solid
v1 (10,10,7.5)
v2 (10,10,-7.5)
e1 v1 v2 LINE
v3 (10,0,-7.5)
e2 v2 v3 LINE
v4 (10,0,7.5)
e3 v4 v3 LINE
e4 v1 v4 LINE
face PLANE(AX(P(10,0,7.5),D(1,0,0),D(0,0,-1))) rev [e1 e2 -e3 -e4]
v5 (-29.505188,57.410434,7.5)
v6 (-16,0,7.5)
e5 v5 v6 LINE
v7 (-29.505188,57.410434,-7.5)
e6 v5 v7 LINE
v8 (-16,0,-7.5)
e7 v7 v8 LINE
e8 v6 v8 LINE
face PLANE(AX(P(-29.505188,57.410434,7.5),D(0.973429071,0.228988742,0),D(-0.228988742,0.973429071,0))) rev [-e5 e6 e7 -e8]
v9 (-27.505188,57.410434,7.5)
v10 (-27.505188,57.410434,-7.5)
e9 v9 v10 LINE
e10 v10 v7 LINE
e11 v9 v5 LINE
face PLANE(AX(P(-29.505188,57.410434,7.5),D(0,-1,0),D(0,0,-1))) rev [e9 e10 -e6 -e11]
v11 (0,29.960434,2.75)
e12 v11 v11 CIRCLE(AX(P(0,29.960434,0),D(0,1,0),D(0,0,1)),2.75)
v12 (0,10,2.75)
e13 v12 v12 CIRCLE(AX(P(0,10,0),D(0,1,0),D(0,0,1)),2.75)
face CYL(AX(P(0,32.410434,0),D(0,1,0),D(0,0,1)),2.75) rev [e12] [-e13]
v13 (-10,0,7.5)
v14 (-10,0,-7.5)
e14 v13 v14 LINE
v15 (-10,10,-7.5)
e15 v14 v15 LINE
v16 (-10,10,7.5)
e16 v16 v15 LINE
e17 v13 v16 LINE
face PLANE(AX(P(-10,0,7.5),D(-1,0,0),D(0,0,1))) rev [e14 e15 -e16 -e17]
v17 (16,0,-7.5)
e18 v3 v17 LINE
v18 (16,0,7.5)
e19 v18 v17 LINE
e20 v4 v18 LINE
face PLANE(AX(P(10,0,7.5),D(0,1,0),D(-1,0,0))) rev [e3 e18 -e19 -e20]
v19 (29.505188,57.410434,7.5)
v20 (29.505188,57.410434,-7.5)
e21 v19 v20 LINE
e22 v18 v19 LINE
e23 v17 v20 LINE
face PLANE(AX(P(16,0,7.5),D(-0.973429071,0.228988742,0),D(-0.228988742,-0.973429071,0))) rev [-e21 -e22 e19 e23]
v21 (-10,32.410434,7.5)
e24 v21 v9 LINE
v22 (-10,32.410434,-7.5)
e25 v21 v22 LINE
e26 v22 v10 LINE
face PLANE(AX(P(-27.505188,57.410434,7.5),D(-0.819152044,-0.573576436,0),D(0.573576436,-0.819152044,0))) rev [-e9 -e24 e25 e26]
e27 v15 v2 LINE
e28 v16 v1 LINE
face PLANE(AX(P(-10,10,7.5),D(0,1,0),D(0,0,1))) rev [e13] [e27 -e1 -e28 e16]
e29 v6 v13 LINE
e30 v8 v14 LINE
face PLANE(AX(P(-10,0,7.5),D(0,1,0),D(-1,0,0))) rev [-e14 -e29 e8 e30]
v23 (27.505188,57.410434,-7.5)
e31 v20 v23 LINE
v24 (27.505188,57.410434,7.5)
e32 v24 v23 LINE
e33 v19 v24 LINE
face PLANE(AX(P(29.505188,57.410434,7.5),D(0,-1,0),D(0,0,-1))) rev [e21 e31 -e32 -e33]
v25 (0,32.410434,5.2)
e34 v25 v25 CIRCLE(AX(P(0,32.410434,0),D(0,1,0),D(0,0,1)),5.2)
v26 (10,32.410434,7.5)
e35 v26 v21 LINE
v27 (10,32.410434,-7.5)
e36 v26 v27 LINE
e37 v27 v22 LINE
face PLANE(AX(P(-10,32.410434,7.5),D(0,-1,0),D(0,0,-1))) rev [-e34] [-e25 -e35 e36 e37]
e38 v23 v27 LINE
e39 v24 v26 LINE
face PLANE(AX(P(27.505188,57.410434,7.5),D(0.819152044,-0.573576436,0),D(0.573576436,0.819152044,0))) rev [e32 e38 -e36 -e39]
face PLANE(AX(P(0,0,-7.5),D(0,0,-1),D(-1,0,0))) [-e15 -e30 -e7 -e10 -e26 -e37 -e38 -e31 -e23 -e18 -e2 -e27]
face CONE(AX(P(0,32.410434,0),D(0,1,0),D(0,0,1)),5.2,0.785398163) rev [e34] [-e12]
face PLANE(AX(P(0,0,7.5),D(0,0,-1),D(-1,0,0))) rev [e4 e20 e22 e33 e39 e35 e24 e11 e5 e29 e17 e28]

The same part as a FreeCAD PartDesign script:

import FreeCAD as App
import Part
import Sketcher
from FreeCAD import Vector
Q = App.Units.Quantity


def add_polygon(sketch, points):
    """Adds a closed chain of lines whose ends are joined by coincident constraints."""
    first, n = sketch.GeometryCount, len(points)
    for a, b in zip(points, points[1:] + points[:1]):
        sketch.addGeometry(Part.LineSegment(App.Vector(*a, 0), App.Vector(*b, 0)), False)
    for i in range(n):
        sketch.addConstraint(Sketcher.Constraint("Coincident", first + i, 2, first + (i + 1) % n, 1))

doc = App.newDocument("Part")
params = doc.addObject("Spreadsheet::Sheet", "Params")
for row, (alias, value) in enumerate([
    ("sketch1_width", "20 mm"),
    ("sketch1_width2", "6 mm"),
    ("sketch1_width3", "2 mm"),
    ("sketch1_height", "10 mm"),
    ("pad1_length", "15 mm"),
    ("sketch2_diameter", "5.5 mm"),
    ("hole_diameter", "5.5 mm"),
    ("hole_csink_diameter", "10.4 mm"),
], start=1):
    params.set(f"A{row}", alias)
    params.set(f"B{row}", "=" + value)
    params.setAlias(f"B{row}", alias)

body = doc.addObject("PartDesign::Body", "Body")

sketch1 = body.newObject("Sketcher::SketchObject", "Sketch")
sketch1.AttachmentSupport = (doc.getObject("XY_Plane"), [""])
sketch1.MapMode = "FlatFace"
add_polygon(sketch1, [(-10, 0), (-10, 10), (10, 10), (10, 0), (16, 0), (29.505188, 57.410434), (27.505188, 57.410434), (10, 32.410434), (-10, 32.410434), (-27.505188, 57.410434), (-29.505188, 57.410434), (-16, 0)])
sketch1.addConstraint(Sketcher.Constraint("Vertical", 0))
sketch1.addConstraint(Sketcher.Constraint("Horizontal", 1))
sketch1.addConstraint(Sketcher.Constraint("Vertical", 2))
sketch1.addConstraint(Sketcher.Constraint("Horizontal", 3))
sketch1.addConstraint(Sketcher.Constraint("Horizontal", 5))
sketch1.addConstraint(Sketcher.Constraint("Horizontal", 7))
sketch1.addConstraint(Sketcher.Constraint("Horizontal", 9))
sketch1.addConstraint(Sketcher.Constraint("Horizontal", 11))
sketch1.addConstraint(Sketcher.Constraint("Symmetric", 3, 2, 10, 2, -1, 1))
sketch1.addConstraint(Sketcher.Constraint("Symmetric", 5, 2, 8, 2, -2))
sketch1.addConstraint(Sketcher.Constraint("Symmetric", 2, 2, 11, 2, -2))
sketch1.addConstraint(Sketcher.Constraint("Vertical", 2, 2, 6, 2))
sketch1.addConstraint(Sketcher.Constraint("Vertical", 0, 2, 7, 2))
sketch1.addConstraint(Sketcher.Constraint("Equal", 5, 9))
sketch1.addConstraint(Sketcher.Constraint("DistanceX", 1, 1, 1, 2, 20.0))
sketch1.addConstraint(Sketcher.Constraint("DistanceX", 3, 1, 3, 2, 6.0))
sketch1.addConstraint(Sketcher.Constraint("DistanceX", 5, 2, 5, 1, 2.0))
sketch1.addConstraint(Sketcher.Constraint("DistanceY", 0, 1, 0, 2, 10.0))
sketch1.addConstraint(Sketcher.Constraint("Angle", 6, Q("-125 deg")))
sketch1.addConstraint(Sketcher.Constraint("DistanceY", 6, 2, 5, 2, 25.0))
sketch1.addConstraint(Sketcher.Constraint("Distance", 4, 58.977522))
sketch1.setExpression("Constraints[26]", "Params.sketch1_width")
sketch1.setExpression("Constraints[27]", "Params.sketch1_width2")
sketch1.setExpression("Constraints[28]", "Params.sketch1_width3")
sketch1.setExpression("Constraints[29]", "Params.sketch1_height")
pad1 = body.newObject("PartDesign::Pad", "Pad")
pad1.Profile = sketch1
pad1.setExpression("Length", "Params.pad1_length")
pad1.Midplane = True

sketch2 = body.newObject("Sketcher::SketchObject", "Sketch001")
sketch2.AttachmentSupport = (doc.getObject("XZ_Plane"), [""])
sketch2.MapMode = "FlatFace"
sketch2.AttachmentOffset = App.Placement(Vector(0, 0, -32.410434), App.Rotation())
sketch2.addGeometry(Part.Circle(Vector(0, 0, 0), Vector(0, 0, 1), 2.75), False)
sketch2.addConstraint(Sketcher.Constraint("Coincident", 0, 3, -1, 1))
sketch2.addConstraint(Sketcher.Constraint("Diameter", 0, 5.5))
sketch2.setExpression("Constraints[1]", "Params.sketch2_diameter")
doc.recompute()
hole = body.newObject("PartDesign::Hole", "Hole")
hole.Profile = sketch2
hole.ThreadType = "None"
hole.setExpression("Diameter", "Params.hole_diameter")
hole.DepthType = "ThroughAll"
hole.HoleCutType = "Countersink"
hole.setExpression("HoleCutDiameter", "Params.hole_csink_diameter")
hole.HoleCutCountersinkAngle = 90
hole.Reversed = True

doc.recompute()
